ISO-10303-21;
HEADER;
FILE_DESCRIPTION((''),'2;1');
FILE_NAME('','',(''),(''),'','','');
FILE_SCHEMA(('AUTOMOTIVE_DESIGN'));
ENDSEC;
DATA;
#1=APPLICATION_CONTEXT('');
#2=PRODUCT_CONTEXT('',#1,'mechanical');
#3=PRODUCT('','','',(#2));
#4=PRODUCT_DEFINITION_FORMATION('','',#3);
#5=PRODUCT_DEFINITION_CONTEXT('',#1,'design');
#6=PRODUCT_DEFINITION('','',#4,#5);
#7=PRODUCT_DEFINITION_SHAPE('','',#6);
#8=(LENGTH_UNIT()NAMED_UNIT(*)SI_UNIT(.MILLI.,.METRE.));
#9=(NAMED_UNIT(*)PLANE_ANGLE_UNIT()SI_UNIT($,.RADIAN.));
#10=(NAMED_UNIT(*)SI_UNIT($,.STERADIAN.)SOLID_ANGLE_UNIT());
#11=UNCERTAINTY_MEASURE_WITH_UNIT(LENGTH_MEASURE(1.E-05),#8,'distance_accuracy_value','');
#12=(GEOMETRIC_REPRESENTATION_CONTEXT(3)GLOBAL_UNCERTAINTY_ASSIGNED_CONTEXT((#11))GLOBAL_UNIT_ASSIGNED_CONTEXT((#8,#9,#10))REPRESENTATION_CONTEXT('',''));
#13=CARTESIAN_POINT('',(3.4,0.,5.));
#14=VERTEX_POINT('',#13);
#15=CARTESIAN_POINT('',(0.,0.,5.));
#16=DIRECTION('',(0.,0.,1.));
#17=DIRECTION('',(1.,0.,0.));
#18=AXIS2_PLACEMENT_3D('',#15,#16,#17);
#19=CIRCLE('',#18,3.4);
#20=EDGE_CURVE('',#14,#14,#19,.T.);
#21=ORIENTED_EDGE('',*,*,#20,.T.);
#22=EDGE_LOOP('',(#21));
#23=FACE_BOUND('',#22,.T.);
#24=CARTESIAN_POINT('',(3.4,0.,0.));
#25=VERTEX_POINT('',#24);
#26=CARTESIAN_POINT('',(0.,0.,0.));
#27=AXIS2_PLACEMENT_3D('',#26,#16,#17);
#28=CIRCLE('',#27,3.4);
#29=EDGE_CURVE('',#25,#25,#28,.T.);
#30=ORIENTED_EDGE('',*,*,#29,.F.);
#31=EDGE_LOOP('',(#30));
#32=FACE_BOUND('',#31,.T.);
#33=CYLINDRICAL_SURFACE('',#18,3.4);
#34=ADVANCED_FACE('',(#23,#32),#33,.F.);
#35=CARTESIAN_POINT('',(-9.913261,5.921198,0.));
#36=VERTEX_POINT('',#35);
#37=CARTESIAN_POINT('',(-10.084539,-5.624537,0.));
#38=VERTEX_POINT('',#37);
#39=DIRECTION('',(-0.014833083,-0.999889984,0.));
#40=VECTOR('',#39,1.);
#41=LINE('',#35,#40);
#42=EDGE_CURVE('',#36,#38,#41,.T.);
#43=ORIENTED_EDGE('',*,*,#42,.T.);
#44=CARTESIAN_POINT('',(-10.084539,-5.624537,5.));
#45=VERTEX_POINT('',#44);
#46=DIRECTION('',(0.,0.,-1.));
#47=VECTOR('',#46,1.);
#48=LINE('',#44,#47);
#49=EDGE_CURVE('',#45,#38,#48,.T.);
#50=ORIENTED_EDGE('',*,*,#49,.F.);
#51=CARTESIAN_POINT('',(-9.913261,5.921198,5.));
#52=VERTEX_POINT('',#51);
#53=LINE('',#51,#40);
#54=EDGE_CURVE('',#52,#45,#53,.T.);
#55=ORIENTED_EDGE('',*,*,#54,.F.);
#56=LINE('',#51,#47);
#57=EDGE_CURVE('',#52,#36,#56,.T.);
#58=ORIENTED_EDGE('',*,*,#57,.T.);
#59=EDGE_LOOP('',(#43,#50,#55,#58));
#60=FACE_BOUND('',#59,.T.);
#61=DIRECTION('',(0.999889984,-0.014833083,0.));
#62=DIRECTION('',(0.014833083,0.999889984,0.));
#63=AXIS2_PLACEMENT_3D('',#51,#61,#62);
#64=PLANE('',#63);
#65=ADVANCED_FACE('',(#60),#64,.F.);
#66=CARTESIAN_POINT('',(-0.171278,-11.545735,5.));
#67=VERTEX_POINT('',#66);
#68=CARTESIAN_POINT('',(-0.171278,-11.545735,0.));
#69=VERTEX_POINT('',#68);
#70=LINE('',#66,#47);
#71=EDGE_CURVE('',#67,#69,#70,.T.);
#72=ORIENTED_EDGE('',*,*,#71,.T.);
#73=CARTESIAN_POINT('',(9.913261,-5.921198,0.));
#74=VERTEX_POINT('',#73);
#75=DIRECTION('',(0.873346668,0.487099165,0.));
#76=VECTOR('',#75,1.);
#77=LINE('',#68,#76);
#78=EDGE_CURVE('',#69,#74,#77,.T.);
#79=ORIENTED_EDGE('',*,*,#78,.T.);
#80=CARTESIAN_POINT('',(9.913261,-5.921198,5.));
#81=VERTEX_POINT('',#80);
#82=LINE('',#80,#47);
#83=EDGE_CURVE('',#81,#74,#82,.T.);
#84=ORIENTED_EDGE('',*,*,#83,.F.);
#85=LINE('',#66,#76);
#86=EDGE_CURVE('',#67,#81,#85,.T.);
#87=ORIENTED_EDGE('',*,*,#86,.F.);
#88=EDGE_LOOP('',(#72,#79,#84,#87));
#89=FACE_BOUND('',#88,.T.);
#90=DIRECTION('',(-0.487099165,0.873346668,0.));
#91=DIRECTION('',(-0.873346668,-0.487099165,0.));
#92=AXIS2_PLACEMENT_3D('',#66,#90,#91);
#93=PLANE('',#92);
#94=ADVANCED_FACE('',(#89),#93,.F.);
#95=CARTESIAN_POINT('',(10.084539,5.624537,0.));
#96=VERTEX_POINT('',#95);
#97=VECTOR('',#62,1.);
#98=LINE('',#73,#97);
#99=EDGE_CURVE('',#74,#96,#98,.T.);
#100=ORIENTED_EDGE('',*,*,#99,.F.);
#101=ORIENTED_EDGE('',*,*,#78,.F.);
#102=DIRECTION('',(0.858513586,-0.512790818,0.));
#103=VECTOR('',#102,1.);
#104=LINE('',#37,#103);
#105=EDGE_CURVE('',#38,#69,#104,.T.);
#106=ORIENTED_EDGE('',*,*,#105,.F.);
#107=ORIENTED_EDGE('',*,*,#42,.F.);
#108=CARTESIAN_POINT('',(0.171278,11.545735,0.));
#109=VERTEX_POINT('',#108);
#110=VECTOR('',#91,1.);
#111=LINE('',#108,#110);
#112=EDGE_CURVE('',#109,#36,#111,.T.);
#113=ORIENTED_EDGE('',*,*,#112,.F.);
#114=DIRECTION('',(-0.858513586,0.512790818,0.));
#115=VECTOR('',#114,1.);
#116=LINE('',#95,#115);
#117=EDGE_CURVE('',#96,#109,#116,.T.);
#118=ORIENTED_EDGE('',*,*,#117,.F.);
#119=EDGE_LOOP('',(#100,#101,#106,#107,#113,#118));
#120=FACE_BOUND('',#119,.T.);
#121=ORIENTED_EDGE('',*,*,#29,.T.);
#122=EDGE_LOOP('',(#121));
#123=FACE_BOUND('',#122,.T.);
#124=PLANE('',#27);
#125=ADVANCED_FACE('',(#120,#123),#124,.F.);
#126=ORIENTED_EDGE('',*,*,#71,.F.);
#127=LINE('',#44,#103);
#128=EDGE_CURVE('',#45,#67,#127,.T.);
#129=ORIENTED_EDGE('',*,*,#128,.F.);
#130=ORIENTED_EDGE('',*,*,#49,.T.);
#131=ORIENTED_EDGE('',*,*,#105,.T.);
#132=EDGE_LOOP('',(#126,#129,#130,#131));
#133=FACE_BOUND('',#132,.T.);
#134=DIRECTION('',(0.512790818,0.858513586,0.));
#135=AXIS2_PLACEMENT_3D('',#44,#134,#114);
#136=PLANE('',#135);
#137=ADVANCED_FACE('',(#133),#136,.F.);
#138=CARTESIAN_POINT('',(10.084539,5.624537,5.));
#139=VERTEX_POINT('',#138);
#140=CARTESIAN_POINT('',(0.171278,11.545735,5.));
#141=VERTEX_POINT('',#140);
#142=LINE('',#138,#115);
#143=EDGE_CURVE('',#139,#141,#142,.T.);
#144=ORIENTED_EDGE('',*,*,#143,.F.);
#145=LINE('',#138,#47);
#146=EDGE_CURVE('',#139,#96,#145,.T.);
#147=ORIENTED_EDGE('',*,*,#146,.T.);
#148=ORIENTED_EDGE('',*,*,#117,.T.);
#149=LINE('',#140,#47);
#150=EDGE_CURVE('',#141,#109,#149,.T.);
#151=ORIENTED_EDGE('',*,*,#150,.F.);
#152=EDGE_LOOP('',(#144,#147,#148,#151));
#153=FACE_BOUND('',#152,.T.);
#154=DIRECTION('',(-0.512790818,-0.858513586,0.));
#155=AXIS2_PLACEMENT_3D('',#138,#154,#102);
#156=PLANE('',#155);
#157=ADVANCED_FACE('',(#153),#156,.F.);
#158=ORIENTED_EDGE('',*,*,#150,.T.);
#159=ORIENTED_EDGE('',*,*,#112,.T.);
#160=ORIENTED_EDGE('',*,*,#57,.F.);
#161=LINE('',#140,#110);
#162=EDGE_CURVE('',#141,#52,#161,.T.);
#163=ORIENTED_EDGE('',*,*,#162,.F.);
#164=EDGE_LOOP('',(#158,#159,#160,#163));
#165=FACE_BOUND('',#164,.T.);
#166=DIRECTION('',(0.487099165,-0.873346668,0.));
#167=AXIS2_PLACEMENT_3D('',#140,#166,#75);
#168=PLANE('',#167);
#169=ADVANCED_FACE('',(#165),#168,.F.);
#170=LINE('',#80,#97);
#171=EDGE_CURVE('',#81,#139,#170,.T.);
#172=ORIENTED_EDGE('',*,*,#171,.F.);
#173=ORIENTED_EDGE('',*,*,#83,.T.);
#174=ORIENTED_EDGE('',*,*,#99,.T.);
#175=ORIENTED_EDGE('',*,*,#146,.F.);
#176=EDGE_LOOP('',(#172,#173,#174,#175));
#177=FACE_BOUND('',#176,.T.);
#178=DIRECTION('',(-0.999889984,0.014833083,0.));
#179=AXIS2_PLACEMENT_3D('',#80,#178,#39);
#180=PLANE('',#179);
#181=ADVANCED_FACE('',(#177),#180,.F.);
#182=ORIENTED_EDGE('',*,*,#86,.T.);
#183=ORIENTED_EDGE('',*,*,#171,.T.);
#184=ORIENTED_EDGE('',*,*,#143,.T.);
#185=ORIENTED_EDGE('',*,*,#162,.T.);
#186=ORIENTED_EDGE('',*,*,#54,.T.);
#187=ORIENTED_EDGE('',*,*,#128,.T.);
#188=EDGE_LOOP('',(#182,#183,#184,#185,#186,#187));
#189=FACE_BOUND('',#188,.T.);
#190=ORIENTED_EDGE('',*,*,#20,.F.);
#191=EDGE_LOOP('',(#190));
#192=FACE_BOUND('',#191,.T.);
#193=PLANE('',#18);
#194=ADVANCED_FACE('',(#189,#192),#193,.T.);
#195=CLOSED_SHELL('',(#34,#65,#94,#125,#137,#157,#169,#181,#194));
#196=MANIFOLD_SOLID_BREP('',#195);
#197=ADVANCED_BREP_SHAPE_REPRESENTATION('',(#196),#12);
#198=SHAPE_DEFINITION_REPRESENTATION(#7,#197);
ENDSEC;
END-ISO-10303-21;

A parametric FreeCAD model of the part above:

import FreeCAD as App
import Part
import Sketcher
from FreeCAD import Vector

doc = App.newDocument("Part")
body = doc.addObject("PartDesign::Body", "Body")

# Sketch on XY plane
sketch1 = doc.addObject("Sketcher::SketchObject", "Sketch")
body.addObject(sketch1)
sketch1.AttachmentSupport = (doc.XY_Plane, [""])
sketch1.MapMode = "FlatFace"
sketch1.addGeometry([
    Part.LineSegment(Vector(10, -6, 0), Vector(10, 6, 0)),  # 0
    Part.LineSegment(Vector(10, 6, 0), Vector(0, 12, 0)),  # 1
    Part.LineSegment(Vector(0, 12, 0), Vector(-10, 6, 0)),  # 2
    Part.LineSegment(Vector(-10, 6, 0), Vector(-10, -6, 0)),  # 3
    Part.LineSegment(Vector(-10, -6, 0), Vector(0, -12, 0)),  # 4
    Part.LineSegment(Vector(0, -12, 0), Vector(10, -6, 0)),  # 5
], False)
sketch1.addConstraint([
    Sketcher.Constraint("Coincident", 0, 2, 1, 1),
    Sketcher.Constraint("Coincident", 1, 2, 2, 1),
    Sketcher.Constraint("Coincident", 2, 2, 3, 1),
    Sketcher.Constraint("Coincident", 3, 2, 4, 1),
    Sketcher.Constraint("Coincident", 4, 2, 5, 1),
    Sketcher.Constraint("Coincident", 5, 2, 0, 1),
    Sketcher.Constraint("Symmetric", 0, 2, 3, 2, -1, 1),
    Sketcher.Constraint("Symmetric", 1, 2, 4, 2, -1, 1),
    Sketcher.Constraint("Symmetric", 2, 2, 5, 2, -1, 1),
    Sketcher.Constraint("Equal", 0, 1),
    Sketcher.Constraint("Equal", 1, 2),
    Sketcher.Constraint("DistanceY", -1, 1, 2, 2, 5.921198),
    Sketcher.Constraint("DistanceY", 0, 2, 1, 2, 5.921198),
    Sketcher.Constraint("DistanceX", 2, 2, 0, 2, 19.9978),
    Sketcher.Constraint("DistanceX", -1, 1, 0, 2, 10.084539),
])
pad1 = doc.addObject("PartDesign::Pad", "Pad")
body.addObject(pad1)
pad1.Profile = sketch1
pad1.Length = 5

# Sketch on XY plane
sketch2 = doc.addObject("Sketcher::SketchObject", "Sketch001")
body.addObject(sketch2)
sketch2.AttachmentSupport = (doc.XY_Plane, [""])
sketch2.MapMode = "FlatFace"
sketch2.AttachmentOffset = App.Placement(Vector(0, 0, 5), App.Rotation())
sketch2.addGeometry(Part.Circle(Vector(0, 0, 0), Vector(0, 0, 1), 3.4), False)
sketch2.addConstraint([
    Sketcher.Constraint("Coincident", 0, 3, -1, 1),
    Sketcher.Constraint("Diameter", 0, 6.8),
])
doc.recompute()
hole = doc.addObject("PartDesign::Hole", "Hole")
body.addObject(hole)
hole.Profile = sketch2
hole.ThreadType = "None"
hole.Diameter = 6.8
hole.DepthType = "Dimension"
hole.Depth = 19.75
hole.DrillPoint = "Angled"
hole.DrillPointAngle = 118

doc.recompute()
